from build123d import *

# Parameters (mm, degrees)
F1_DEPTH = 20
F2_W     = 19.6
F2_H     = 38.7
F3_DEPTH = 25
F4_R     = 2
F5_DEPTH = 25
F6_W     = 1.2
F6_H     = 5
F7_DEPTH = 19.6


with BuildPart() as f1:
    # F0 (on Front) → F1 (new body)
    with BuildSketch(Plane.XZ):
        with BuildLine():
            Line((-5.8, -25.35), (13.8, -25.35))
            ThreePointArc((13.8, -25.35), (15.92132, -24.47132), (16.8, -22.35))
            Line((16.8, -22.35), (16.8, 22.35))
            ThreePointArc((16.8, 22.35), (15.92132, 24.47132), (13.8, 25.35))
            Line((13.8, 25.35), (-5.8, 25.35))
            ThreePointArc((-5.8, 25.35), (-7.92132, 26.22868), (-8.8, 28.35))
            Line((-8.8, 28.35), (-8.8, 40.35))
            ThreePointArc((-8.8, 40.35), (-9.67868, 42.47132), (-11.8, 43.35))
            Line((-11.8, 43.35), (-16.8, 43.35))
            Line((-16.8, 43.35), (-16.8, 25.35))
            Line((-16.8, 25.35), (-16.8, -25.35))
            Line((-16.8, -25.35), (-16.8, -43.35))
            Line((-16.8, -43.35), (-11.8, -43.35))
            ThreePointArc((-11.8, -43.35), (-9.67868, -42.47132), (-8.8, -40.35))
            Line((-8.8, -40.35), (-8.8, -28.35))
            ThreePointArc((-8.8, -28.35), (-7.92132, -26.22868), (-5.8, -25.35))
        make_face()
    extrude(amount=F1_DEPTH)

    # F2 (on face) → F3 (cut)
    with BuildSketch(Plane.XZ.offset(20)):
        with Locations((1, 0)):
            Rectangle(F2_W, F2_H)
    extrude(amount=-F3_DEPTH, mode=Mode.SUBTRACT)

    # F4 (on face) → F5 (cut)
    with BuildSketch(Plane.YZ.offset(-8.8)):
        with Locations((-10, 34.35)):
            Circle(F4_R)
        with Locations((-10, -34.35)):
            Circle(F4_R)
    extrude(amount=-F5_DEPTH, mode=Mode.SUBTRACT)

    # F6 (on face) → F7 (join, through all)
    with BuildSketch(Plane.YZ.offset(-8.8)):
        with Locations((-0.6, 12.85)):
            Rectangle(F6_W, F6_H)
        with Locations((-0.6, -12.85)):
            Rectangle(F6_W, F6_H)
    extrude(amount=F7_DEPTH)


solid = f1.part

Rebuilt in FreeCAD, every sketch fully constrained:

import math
import FreeCAD as App
import Part
import Sketcher
from FreeCAD import Vector
Q = App.Units.Quantity


def add_polygon(sketch, points):
    """Adds a closed chain of lines whose ends are joined by coincident constraints."""
    first, n = sketch.GeometryCount, len(points)
    for a, b in zip(points, points[1:] + points[:1]):
        sketch.addGeometry(Part.LineSegment(App.Vector(*a, 0), App.Vector(*b, 0)), False)
    for i in range(n):
        sketch.addConstraint(Sketcher.Constraint("Coincident", first + i, 2, first + (i + 1) % n, 1))

doc = App.newDocument("Part")
body = doc.addObject("PartDesign::Body", "Body")

sketch1 = body.newObject("Sketcher::SketchObject", "Sketch")
sketch1.AttachmentSupport = (doc.getObject("XZ_Plane"), [""])
sketch1.MapMode = "FlatFace"
sketch1.addGeometry(Part.LineSegment(Vector(-5.8, -25.4, 0), Vector(13.8, -25.4, 0)), False)
sketch1.addGeometry(Part.ArcOfCircle(Part.Circle(Vector(13.8, -22.3, 0), Vector(0, 0, 1), 3), math.radians(-90), math.radians(0)), False)
sketch1.addGeometry(Part.LineSegment(Vector(16.8, -22.4, 0), Vector(16.8, 22.4, 0)), False)
sketch1.addGeometry(Part.ArcOfCircle(Part.Circle(Vector(13.8, 22.3, 0), Vector(0, 0, 1), 3), math.radians(0), math.radians(90)), False)
sketch1.addGeometry(Part.LineSegment(Vector(13.8, 25.4, 0), Vector(-5.8, 25.4, 0)), False)
sketch1.addGeometry(Part.ArcOfCircle(Part.Circle(Vector(-5.8, 28.4, 0), Vector(0, 0, 1), 3), math.radians(-180), math.radians(-90)), False)
sketch1.addGeometry(Part.LineSegment(Vector(-8.8, 28.4, 0), Vector(-8.8, 40.4, 0)), False)
sketch1.addGeometry(Part.ArcOfCircle(Part.Circle(Vector(-11.8, 40.3, 0), Vector(0, 0, 1), 3), math.radians(0), math.radians(90)), False)
sketch1.addGeometry(Part.LineSegment(Vector(-11.8, 43.4, 0), Vector(-16.8, 43.4, 0)), False)
sketch1.addGeometry(Part.LineSegment(Vector(-16.8, 43.4, 0), Vector(-16.8, -43.4, 0)), False)
sketch1.addGeometry(Part.LineSegment(Vector(-16.8, -43.4, 0), Vector(-11.8, -43.4, 0)), False)
sketch1.addGeometry(Part.ArcOfCircle(Part.Circle(Vector(-11.8, -40.3, 0), Vector(0, 0, 1), 3), math.radians(-90), math.radians(0)), False)
sketch1.addGeometry(Part.LineSegment(Vector(-8.8, -40.4, 0), Vector(-8.8, -28.4, 0)), False)
sketch1.addGeometry(Part.ArcOfCircle(Part.Circle(Vector(-5.8, -28.4, 0), Vector(0, 0, 1), 3), math.radians(90), math.radians(180)), False)
sketch1.addConstraint(Sketcher.Constraint("Tangent", 0, 2, 1, 1))
sketch1.addConstraint(Sketcher.Constraint("Tangent", 1, 2, 2, 1))
sketch1.addConstraint(Sketcher.Constraint("Tangent", 2, 2, 3, 1))
sketch1.addConstraint(Sketcher.Constraint("Tangent", 3, 2, 4, 1))
sketch1.addConstraint(Sketcher.Constraint("Tangent", 4, 2, 5, 2))
sketch1.addConstraint(Sketcher.Constraint("Tangent", 5, 1, 6, 1))
sketch1.addConstraint(Sketcher.Constraint("Tangent", 6, 2, 7, 1))
sketch1.addConstraint(Sketcher.Constraint("Tangent", 7, 2, 8, 1))
sketch1.addConstraint(Sketcher.Constraint("Coincident", 8, 2, 9, 1))
sketch1.addConstraint(Sketcher.Constraint("Coincident", 9, 2, 10, 1))
sketch1.addConstraint(Sketcher.Constraint("Tangent", 10, 2, 11, 1))
sketch1.addConstraint(Sketcher.Constraint("Tangent", 11, 2, 12, 1))
sketch1.addConstraint(Sketcher.Constraint("Tangent", 12, 2, 13, 2))
sketch1.addConstraint(Sketcher.Constraint("Tangent", 13, 1, 0, 1))
sketch1.addConstraint(Sketcher.Constraint("Horizontal", 0))
sketch1.addConstraint(Sketcher.Constraint("Vertical", 2))
sketch1.addConstraint(Sketcher.Constraint("Horizontal", 4))
sketch1.addConstraint(Sketcher.Constraint("Vertical", 6))
sketch1.addConstraint(Sketcher.Constraint("Horizontal", 8))
sketch1.addConstraint(Sketcher.Constraint("Vertical", 9))
sketch1.addConstraint(Sketcher.Constraint("Horizontal", 10))
sketch1.addConstraint(Sketcher.Constraint("Vertical", 12))
sketch1.addConstraint(Sketcher.Constraint("Equal", 1, 3))
sketch1.addConstraint(Sketcher.Constraint("Equal", 3, 5))
sketch1.addConstraint(Sketcher.Constraint("Equal", 5, 7))
sketch1.addConstraint(Sketcher.Constraint("Equal", 7, 11))
sketch1.addConstraint(Sketcher.Constraint("Equal", 11, 13))
sketch1.addConstraint(Sketcher.Constraint("Symmetric", 7, 3, 11, 3, -1))
sketch1.addConstraint(Sketcher.Constraint("Equal", 6, 12))
sketch1.addConstraint(Sketcher.Constraint("Radius", 1, Q("3.000001 mm")))
sketch1.addConstraint(Sketcher.Constraint("DistanceX", 8, 2, 8, 1, Q("5 mm")))
sketch1.addConstraint(Sketcher.Constraint("DistanceY", 6, 1, 6, 2, Q("12 mm")))
sketch1.addConstraint(Sketcher.Constraint("DistanceX", 0, 1, 0, 2, Q("19.6 mm")))
sketch1.addConstraint(Sketcher.Constraint("DistanceY", 2, 1, 2, 2, Q("44.7 mm")))
sketch1.addConstraint(Sketcher.Constraint("DistanceX", -1, 1, 1, 3, Q("13.799999 mm")))
pad1 = body.newObject("PartDesign::Pad", "Pad")
pad1.Profile = sketch1
pad1.Length = 20

sketch2 = body.newObject("Sketcher::SketchObject", "Sketch001")
sketch2.AttachmentSupport = (doc.getObject("XZ_Plane"), [""])
sketch2.MapMode = "FlatFace"
sketch2.AttachmentOffset = App.Placement(Vector(0, 0, 20), App.Rotation())
add_polygon(sketch2, [(-9, 19), (-9, -19), (11, -19), (11, 19)])
sketch2.addConstraint(Sketcher.Constraint("Vertical", 0))
sketch2.addConstraint(Sketcher.Constraint("Horizontal", 1))
sketch2.addConstraint(Sketcher.Constraint("Vertical", 2))
sketch2.addConstraint(Sketcher.Constraint("Horizontal", 3))
sketch2.addConstraint(Sketcher.Constraint("DistanceX", 1, 1, 1, 2, Q("19.6 mm")))
sketch2.addConstraint(Sketcher.Constraint("DistanceY", 0, 2, 0, 1, Q("38.7 mm")))
sketch2.addConstraint(Sketcher.Constraint("DistanceX", 0, 2, -1, 1, Q("8.8 mm")))
sketch2.addConstraint(Sketcher.Constraint("DistanceY", 0, 2, -1, 1, Q("19.35 mm")))
pocket1 = body.newObject("PartDesign::Pocket", "Pocket")
pocket1.Profile = sketch2
pocket1.Length = 25

sketch3 = body.newObject("Sketcher::SketchObject", "Sketch002")
sketch3.AttachmentSupport = (doc.getObject("YZ_Plane"), [""])
sketch3.MapMode = "FlatFace"
sketch3.AttachmentOffset = App.Placement(Vector(0, 0, -8.8), App.Rotation())
sketch3.addGeometry(Part.Circle(Vector(-10, 34.4, 0), Vector(0, 0, 1), 2), False)
sketch3.addGeometry(Part.Circle(Vector(-10, -34.4, 0), Vector(0, 0, 1), 2), False)
sketch3.addConstraint(Sketcher.Constraint("Equal", 0, 1))
sketch3.addConstraint(Sketcher.Constraint("Symmetric", 0, 3, 1, 3, -1))
sketch3.addConstraint(Sketcher.Constraint("Diameter", 0, Q("4 mm")))
sketch3.addConstraint(Sketcher.Constraint("DistanceX", 0, 3, -1, 1, Q("10 mm")))
sketch3.addConstraint(Sketcher.Constraint("DistanceY", 1, 3, 0, 3, Q("68.7 mm")))
pocket2 = body.newObject("PartDesign::Pocket", "Pocket001")
pocket2.Profile = sketch3
pocket2.Length = 25

sketch4 = body.newObject("Sketcher::SketchObject", "Sketch003")
sketch4.AttachmentSupport = (doc.getObject("YZ_Plane"), [""])
sketch4.MapMode = "FlatFace"
sketch4.AttachmentOffset = App.Placement(Vector(0, 0, -8.8), App.Rotation())
add_polygon(sketch4, [(-1.2, 15.3), (-1.2, 10.3), (0, 10.3), (0, 15.3)])
add_polygon(sketch4, [(-1.2, -10.3), (-1.2, -15.3), (0, -15.3), (0, -10.3)])
sketch4.addConstraint(Sketcher.Constraint("Vertical", 0))
sketch4.addConstraint(Sketcher.Constraint("Horizontal", 1))
sketch4.addConstraint(Sketcher.Constraint("Vertical", 2))
sketch4.addConstraint(Sketcher.Constraint("Horizontal", 3))
sketch4.addConstraint(Sketcher.Constraint("Vertical", 4))
sketch4.addConstraint(Sketcher.Constraint("Horizontal", 5))
sketch4.addConstraint(Sketcher.Constraint("Vertical", 6))
sketch4.addConstraint(Sketcher.Constraint("Horizontal", 7))
sketch4.addConstraint(Sketcher.Constraint("Symmetric", 2, 2, 5, 2, -1, 1))
sketch4.addConstraint(Sketcher.Constraint("Symmetric", 1, 2, 6, 2, -1))
sketch4.addConstraint(Sketcher.Constraint("Vertical", 3, 2, 4, 2))
sketch4.addConstraint(Sketcher.Constraint("DistanceY", 0, 2, 0, 1, Q("5 mm")))
sketch4.addConstraint(Sketcher.Constraint("DistanceX", 1, 1, 1, 2, Q("1.2 mm")))
sketch4.addConstraint(Sketcher.Constraint("DistanceY", 4, 2, 0, 2, Q("25.7 mm")))
pad2 = body.newObject("PartDesign::Pad", "Pad001")
pad2.Profile = sketch4
pad2.Type = "UpToLast"

doc.recompute()
